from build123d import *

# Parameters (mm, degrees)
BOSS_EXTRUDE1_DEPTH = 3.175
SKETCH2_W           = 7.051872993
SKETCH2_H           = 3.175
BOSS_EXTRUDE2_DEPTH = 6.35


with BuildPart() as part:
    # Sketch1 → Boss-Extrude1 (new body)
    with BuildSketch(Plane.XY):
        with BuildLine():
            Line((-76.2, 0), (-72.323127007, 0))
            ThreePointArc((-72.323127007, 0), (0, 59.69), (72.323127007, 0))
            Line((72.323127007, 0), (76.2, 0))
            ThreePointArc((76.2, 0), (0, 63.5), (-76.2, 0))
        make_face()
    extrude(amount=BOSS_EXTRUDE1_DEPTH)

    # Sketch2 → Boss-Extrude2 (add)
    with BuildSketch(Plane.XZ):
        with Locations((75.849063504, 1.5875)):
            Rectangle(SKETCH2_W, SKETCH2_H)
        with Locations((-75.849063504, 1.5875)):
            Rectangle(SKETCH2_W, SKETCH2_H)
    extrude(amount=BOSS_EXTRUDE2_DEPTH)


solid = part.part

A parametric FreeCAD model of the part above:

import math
import FreeCAD as App
import Part
import Sketcher

V = App.Vector
Q = App.Units.Quantity

doc = App.newDocument("Part")
body = doc.addObject("PartDesign::Body", "Body")

# Sketch on XY plane
sketch1 = doc.addObject("Sketcher::SketchObject", "Sketch")
body.addObject(sketch1)
sketch1.AttachmentSupport = (doc.XY_Plane, [""])
sketch1.MapMode = "FlatFace"
sketch1.addGeometry(Part.LineSegment(V(-76.2, 0, 0), V(-72.323127, 0, 0)), False)
sketch1.addGeometry(Part.ArcOfCircle(Part.Circle(V(0, -13.97, 0), V(0, 0, 1), 73.66), math.radians(10.932661), math.radians(169.067339)), False)
sketch1.addGeometry(Part.LineSegment(V(72.323127, 0, 0), V(76.2, 0, 0)), False)
sketch1.addGeometry(Part.ArcOfCircle(Part.Circle(V(0, -13.97, 0), V(0, 0, 1), 77.47), math.radians(10.388858), math.radians(169.611142)), False)
sketch1.addConstraint(Sketcher.Constraint("Coincident", 0, 2, 1, 2))
sketch1.addConstraint(Sketcher.Constraint("Coincident", 1, 1, 2, 1))
sketch1.addConstraint(Sketcher.Constraint("Coincident", 2, 2, 3, 1))
sketch1.addConstraint(Sketcher.Constraint("Coincident", 3, 2, 0, 1))
sketch1.addConstraint(Sketcher.Constraint("Horizontal", 0))
sketch1.addConstraint(Sketcher.Constraint("Horizontal", 2))
sketch1.addConstraint(Sketcher.Constraint("Coincident", 3, 3, 1, 3))
sketch1.addConstraint(Sketcher.Constraint("Symmetric", 0, 2, 1, 1, -1, 1))
sketch1.addConstraint(Sketcher.Constraint("PointOnObject", 1, 3, -2))
sketch1.addConstraint(Sketcher.Constraint("Radius", 1, Q("2.9 in")))
sketch1.addConstraint(Sketcher.Constraint("Radius", 3, Q("3.05 in")))
sketch1.addConstraint(Sketcher.Constraint("DistanceX", -1, 1, 2, 2, Q("3 in")))
pad1 = doc.addObject("PartDesign::Pad", "Pad")
body.addObject(pad1)
pad1.Profile = sketch1
pad1.Length = Q("0.125 in")

# Sketch on XZ plane
sketch2 = doc.addObject("Sketcher::SketchObject", "Sketch001")
body.addObject(sketch2)
sketch2.AttachmentSupport = (doc.XZ_Plane, [""])
sketch2.MapMode = "FlatFace"
sketch2.addGeometry(Part.LineSegment(V(72.323127, 3.175, 0), V(72.323127, 0, 0)), False)
sketch2.addGeometry(Part.LineSegment(V(72.323127, 0, 0), V(79.375, 0, 0)), False)
sketch2.addGeometry(Part.LineSegment(V(79.375, 0, 0), V(79.375, 3.175, 0)), False)
sketch2.addGeometry(Part.LineSegment(V(79.375, 3.175, 0), V(72.323127, 3.175, 0)), False)
sketch2.addGeometry(Part.LineSegment(V(-79.375, 3.175, 0), V(-79.375, 0, 0)), False)
sketch2.addGeometry(Part.LineSegment(V(-79.375, 0, 0), V(-72.323127, 0, 0)), False)
sketch2.addGeometry(Part.LineSegment(V(-72.323127, 0, 0), V(-72.323127, 3.175, 0)), False)
sketch2.addGeometry(Part.LineSegment(V(-72.323127, 3.175, 0), V(-79.375, 3.175, 0)), False)
sketch2.addConstraint(Sketcher.Constraint("Coincident", 0, 2, 1, 1))
sketch2.addConstraint(Sketcher.Constraint("Coincident", 1, 2, 2, 1))
sketch2.addConstraint(Sketcher.Constraint("Coincident", 2, 2, 3, 1))
sketch2.addConstraint(Sketcher.Constraint("Coincident", 3, 2, 0, 1))
sketch2.addConstraint(Sketcher.Constraint("Coincident", 4, 2, 5, 1))
sketch2.addConstraint(Sketcher.Constraint("Coincident", 5, 2, 6, 1))
sketch2.addConstraint(Sketcher.Constraint("Coincident", 6, 2, 7, 1))
sketch2.addConstraint(Sketcher.Constraint("Coincident", 7, 2, 4, 1))
sketch2.addConstraint(Sketcher.Constraint("Vertical", 0))
sketch2.addConstraint(Sketcher.Constraint("Horizontal", 1))
sketch2.addConstraint(Sketcher.Constraint("Vertical", 2))
sketch2.addConstraint(Sketcher.Constraint("Horizontal", 3))
sketch2.addConstraint(Sketcher.Constraint("Vertical", 4))
sketch2.addConstraint(Sketcher.Constraint("Horizontal", 5))
sketch2.addConstraint(Sketcher.Constraint("Vertical", 6))
sketch2.addConstraint(Sketcher.Constraint("Horizontal", 7))
sketch2.addConstraint(Sketcher.Constraint("Symmetric", 1, 2, 4, 2, -1, 1))
sketch2.addConstraint(Sketcher.Constraint("Symmetric", 0, 2, 5, 2, -2))
sketch2.addConstraint(Sketcher.Constraint("Horizontal", 3, 2, 6, 2))
sketch2.addConstraint(Sketcher.Constraint("DistanceY", 0, 2, 0, 1, Q("0.125 in")))
sketch2.addConstraint(Sketcher.Constraint("DistanceX", 4, 2, 1, 2, Q("6.25 in")))
sketch2.addConstraint(Sketcher.Constraint("DistanceX", 1, 1, 1, 2, 7.051873))
pad2 = doc.addObject("PartDesign::Pad", "Pad001")
body.addObject(pad2)
pad2.Profile = sketch2
pad2.Length = Q("0.25 in")

doc.recompute()
